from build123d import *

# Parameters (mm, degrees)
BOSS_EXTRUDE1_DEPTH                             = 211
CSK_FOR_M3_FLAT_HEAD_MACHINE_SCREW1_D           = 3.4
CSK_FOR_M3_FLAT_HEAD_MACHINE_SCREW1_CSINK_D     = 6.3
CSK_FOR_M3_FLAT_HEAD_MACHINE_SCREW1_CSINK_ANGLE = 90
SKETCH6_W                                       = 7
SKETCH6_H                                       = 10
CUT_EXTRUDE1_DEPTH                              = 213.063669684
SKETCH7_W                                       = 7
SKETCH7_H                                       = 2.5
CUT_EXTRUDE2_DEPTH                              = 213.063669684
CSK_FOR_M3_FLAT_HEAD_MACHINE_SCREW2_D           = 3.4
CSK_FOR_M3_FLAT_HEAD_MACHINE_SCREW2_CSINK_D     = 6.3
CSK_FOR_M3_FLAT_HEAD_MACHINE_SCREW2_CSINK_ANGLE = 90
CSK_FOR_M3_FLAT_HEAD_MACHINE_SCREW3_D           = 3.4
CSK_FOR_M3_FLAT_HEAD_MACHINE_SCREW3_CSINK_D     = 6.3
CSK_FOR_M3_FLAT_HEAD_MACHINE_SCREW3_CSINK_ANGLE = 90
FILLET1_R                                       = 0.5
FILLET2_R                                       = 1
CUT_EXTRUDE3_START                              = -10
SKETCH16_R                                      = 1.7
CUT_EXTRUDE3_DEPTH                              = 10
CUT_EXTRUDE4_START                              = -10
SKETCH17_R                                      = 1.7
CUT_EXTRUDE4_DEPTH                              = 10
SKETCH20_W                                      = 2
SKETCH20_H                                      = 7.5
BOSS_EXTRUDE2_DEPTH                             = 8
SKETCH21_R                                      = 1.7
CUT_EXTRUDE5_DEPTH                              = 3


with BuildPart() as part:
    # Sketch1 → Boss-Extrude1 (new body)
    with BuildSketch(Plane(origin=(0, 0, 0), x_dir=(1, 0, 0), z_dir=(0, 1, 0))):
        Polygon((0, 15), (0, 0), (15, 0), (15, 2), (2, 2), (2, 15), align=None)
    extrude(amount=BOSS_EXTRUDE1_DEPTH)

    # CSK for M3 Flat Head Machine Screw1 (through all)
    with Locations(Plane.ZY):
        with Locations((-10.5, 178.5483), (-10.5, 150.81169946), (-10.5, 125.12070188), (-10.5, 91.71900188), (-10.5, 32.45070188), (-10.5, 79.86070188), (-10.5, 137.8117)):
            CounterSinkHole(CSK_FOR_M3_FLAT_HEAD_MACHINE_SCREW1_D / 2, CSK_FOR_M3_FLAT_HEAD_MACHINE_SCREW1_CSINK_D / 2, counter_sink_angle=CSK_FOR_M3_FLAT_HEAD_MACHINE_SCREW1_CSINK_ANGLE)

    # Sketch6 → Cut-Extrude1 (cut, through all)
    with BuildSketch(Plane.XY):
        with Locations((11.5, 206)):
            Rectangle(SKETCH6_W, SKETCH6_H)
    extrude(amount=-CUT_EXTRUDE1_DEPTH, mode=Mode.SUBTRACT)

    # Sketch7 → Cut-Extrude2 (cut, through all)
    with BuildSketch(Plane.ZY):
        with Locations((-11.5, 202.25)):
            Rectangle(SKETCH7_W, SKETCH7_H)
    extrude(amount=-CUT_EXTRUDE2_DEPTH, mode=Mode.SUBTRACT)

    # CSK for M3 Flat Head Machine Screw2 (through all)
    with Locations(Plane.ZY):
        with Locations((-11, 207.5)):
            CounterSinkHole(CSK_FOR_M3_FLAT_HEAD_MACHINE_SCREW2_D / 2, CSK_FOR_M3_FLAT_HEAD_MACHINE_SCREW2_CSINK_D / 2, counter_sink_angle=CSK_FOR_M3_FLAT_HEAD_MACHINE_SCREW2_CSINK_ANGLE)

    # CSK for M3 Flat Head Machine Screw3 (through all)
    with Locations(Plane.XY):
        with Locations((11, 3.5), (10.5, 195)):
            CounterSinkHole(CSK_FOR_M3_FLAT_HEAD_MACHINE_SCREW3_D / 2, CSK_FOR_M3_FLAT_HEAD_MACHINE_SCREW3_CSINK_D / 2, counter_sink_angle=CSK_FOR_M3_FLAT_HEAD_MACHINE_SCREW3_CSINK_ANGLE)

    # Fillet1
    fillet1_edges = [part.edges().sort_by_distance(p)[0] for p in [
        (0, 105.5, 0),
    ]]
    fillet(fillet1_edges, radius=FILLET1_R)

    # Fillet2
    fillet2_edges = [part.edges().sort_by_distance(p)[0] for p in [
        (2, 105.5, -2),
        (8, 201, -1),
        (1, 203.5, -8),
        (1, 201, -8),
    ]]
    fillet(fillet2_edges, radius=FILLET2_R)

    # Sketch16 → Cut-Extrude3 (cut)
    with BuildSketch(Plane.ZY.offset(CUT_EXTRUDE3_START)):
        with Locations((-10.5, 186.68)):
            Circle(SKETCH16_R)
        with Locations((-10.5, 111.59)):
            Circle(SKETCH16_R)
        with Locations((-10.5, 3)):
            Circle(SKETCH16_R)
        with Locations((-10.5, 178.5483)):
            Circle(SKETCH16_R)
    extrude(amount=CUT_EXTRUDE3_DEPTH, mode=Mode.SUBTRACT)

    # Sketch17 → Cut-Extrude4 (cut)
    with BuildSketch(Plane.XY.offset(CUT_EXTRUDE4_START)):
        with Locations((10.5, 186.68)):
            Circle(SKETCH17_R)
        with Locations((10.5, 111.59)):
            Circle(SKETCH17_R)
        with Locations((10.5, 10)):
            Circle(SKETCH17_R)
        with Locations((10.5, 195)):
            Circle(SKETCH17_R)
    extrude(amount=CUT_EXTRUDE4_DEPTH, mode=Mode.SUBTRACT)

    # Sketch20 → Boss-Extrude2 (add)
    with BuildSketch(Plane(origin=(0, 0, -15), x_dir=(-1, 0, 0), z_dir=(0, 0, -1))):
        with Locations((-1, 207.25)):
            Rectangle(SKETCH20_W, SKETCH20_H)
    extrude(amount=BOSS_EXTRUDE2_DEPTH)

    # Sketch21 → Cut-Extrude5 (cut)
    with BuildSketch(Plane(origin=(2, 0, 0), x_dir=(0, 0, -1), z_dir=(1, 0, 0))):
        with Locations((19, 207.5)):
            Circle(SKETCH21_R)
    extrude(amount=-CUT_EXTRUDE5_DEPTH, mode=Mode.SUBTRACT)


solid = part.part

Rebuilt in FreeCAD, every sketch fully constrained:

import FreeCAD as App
import Part
import Sketcher


def edges_at(feature, points):
    """Names of the edges that pass closest to the given points."""
    edges = feature.Shape.Edges
    near = lambda p: min(range(len(edges)), key=lambda i: edges[i].distToShape(Part.Vertex(*p))[0])
    return sorted({f"Edge{near(p) + 1}" for p in points})

doc = App.newDocument("Part")
body = doc.addObject("PartDesign::Body", "Body")

sketch1 = body.newObject("Sketcher::SketchObject", "Sketch")
sketch1.AttachmentSupport = (doc.getObject("XZ_Plane"), [""])
sketch1.MapMode = "FlatFace"
sketch1.addGeometry([
    Part.LineSegment(App.Vector(0, -15, 0), App.Vector(0, 0, 0)),
    Part.LineSegment(App.Vector(0, 0, 0), App.Vector(15, 0, 0)),
    Part.LineSegment(App.Vector(15, 0, 0), App.Vector(15, -2, 0)),
    Part.LineSegment(App.Vector(15, -2, 0), App.Vector(2, -2, 0)),
    Part.LineSegment(App.Vector(2, -2, 0), App.Vector(2, -15, 0)),
    Part.LineSegment(App.Vector(2, -15, 0), App.Vector(0, -15, 0)),
], False)
sketch1.addConstraint([
    Sketcher.Constraint("Coincident", 0, 2, 1, 1),
    Sketcher.Constraint("Coincident", 1, 2, 2, 1),
    Sketcher.Constraint("Coincident", 2, 2, 3, 1),
    Sketcher.Constraint("Coincident", 3, 2, 4, 1),
    Sketcher.Constraint("Coincident", 4, 2, 5, 1),
    Sketcher.Constraint("Coincident", 5, 2, 0, 1),
    Sketcher.Constraint("Vertical", 0),
    Sketcher.Constraint("Horizontal", 1),
    Sketcher.Constraint("Vertical", 2),
    Sketcher.Constraint("Horizontal", 3),
    Sketcher.Constraint("Vertical", 4),
    Sketcher.Constraint("Horizontal", 5),
    Sketcher.Constraint("Coincident", 0, 2, -1, 1),
    Sketcher.Constraint("Equal", 1, 0),
    Sketcher.Constraint("Equal", 5, 2),
    Sketcher.Constraint("DistanceX", 1, 1, 1, 2, 15.0),
    Sketcher.Constraint("DistanceX", 3, 2, 3, 1, 13.0),
])
pad1 = body.newObject("PartDesign::Pad", "Pad")
pad1.Profile = sketch1
pad1.Length = 211
pad1.Reversed = True

sketch2 = body.newObject("Sketcher::SketchObject", "Sketch001")
sketch2.AttachmentSupport = (doc.getObject("YZ_Plane"), [""])
sketch2.MapMode = "FlatFace"
sketch2.addGeometry([
    Part.Circle(App.Vector(178.5483, -10.5, 0), App.Vector(0, 0, 1), 1.7),
    Part.Circle(App.Vector(150.811699, -10.5, 0), App.Vector(0, 0, 1), 1.7),
    Part.Circle(App.Vector(125.120702, -10.5, 0), App.Vector(0, 0, 1), 1.7),
    Part.Circle(App.Vector(91.719002, -10.5, 0), App.Vector(0, 0, 1), 1.7),
    Part.Circle(App.Vector(32.450702, -10.5, 0), App.Vector(0, 0, 1), 1.7),
    Part.Circle(App.Vector(79.860702, -10.5, 0), App.Vector(0, 0, 1), 1.7),
    Part.Circle(App.Vector(137.8117, -10.5, 0), App.Vector(0, 0, 1), 1.7),
], False)
sketch2.addConstraint([
    Sketcher.Constraint("Equal", 0, 1),
    Sketcher.Constraint("Equal", 1, 2),
    Sketcher.Constraint("Equal", 2, 3),
    Sketcher.Constraint("Equal", 3, 4),
    Sketcher.Constraint("Equal", 4, 5),
    Sketcher.Constraint("Equal", 5, 6),
    Sketcher.Constraint("Horizontal", 0, 3, 1, 3),
    Sketcher.Constraint("Horizontal", 1, 3, 2, 3),
    Sketcher.Constraint("Horizontal", 2, 3, 3, 3),
    Sketcher.Constraint("Horizontal", 3, 3, 4, 3),
    Sketcher.Constraint("Horizontal", 4, 3, 5, 3),
    Sketcher.Constraint("Horizontal", 5, 3, 6, 3),
    Sketcher.Constraint("Diameter", 0, 3.4),
    Sketcher.Constraint("DistanceX", 6, 3, 1, 3, 12.999999),
    Sketcher.Constraint("DistanceY", 0, 3, -1, 1, 10.5),
    Sketcher.Constraint("DistanceX", 4, 3, 2, 3, 92.67),
    Sketcher.Constraint("DistanceX", 5, 3, 2, 3, 45.26),
    Sketcher.Constraint("DistanceX", -1, 1, 3, 3, 91.719002),
    Sketcher.Constraint("DistanceX", 2, 3, 6, 3, 12.690998),
    Sketcher.Constraint("DistanceX", -1, 1, 0, 3, 178.5483),
    Sketcher.Constraint("DistanceX", -1, 1, 1, 3, 150.811699),
])
doc.recompute()
hole = body.newObject("PartDesign::Hole", "Hole")
hole.Profile = sketch2
hole.ThreadType = "None"
hole.Diameter = 3.4
hole.DepthType = "ThroughAll"
hole.HoleCutType = "Countersink"
hole.HoleCutDiameter = 6.3
hole.HoleCutCountersinkAngle = 90
hole.Reversed = True

sketch3 = body.newObject("Sketcher::SketchObject", "Sketch002")
sketch3.AttachmentSupport = (doc.getObject("XY_Plane"), [""])
sketch3.MapMode = "FlatFace"
sketch3.addGeometry([
    Part.LineSegment(App.Vector(8, 211, 0), App.Vector(8, 201, 0)),
    Part.LineSegment(App.Vector(8, 201, 0), App.Vector(15, 201, 0)),
    Part.LineSegment(App.Vector(15, 201, 0), App.Vector(15, 211, 0)),
    Part.LineSegment(App.Vector(15, 211, 0), App.Vector(8, 211, 0)),
], False)
sketch3.addConstraint([
    Sketcher.Constraint("Coincident", 0, 2, 1, 1),
    Sketcher.Constraint("Coincident", 1, 2, 2, 1),
    Sketcher.Constraint("Coincident", 2, 2, 3, 1),
    Sketcher.Constraint("Coincident", 3, 2, 0, 1),
    Sketcher.Constraint("Vertical", 0),
    Sketcher.Constraint("Horizontal", 1),
    Sketcher.Constraint("Vertical", 2),
    Sketcher.Constraint("Horizontal", 3),
    Sketcher.Constraint("DistanceX", 1, 1, 1, 2, 7.0),
    Sketcher.Constraint("DistanceY", 0, 2, 0, 1, 10.0),
    Sketcher.Constraint("DistanceX", -1, 1, 0, 2, 8.0),
    Sketcher.Constraint("DistanceY", -1, 1, 0, 2, 201.0),
])
pocket1 = body.newObject("PartDesign::Pocket", "Pocket")
pocket1.Profile = sketch3
pocket1.Type = "ThroughAll"

sketch4 = body.newObject("Sketcher::SketchObject", "Sketch003")
sketch4.AttachmentSupport = (doc.getObject("YZ_Plane"), [""])
sketch4.MapMode = "FlatFace"
sketch4.addGeometry([
    Part.LineSegment(App.Vector(203.5, -15, 0), App.Vector(201, -15, 0)),
    Part.LineSegment(App.Vector(201, -15, 0), App.Vector(201, -8, 0)),
    Part.LineSegment(App.Vector(201, -8, 0), App.Vector(203.5, -8, 0)),
    Part.LineSegment(App.Vector(203.5, -8, 0), App.Vector(203.5, -15, 0)),
], False)
sketch4.addConstraint([
    Sketcher.Constraint("Coincident", 0, 2, 1, 1),
    Sketcher.Constraint("Coincident", 1, 2, 2, 1),
    Sketcher.Constraint("Coincident", 2, 2, 3, 1),
    Sketcher.Constraint("Coincident", 3, 2, 0, 1),
    Sketcher.Constraint("Horizontal", 0),
    Sketcher.Constraint("Vertical", 1),
    Sketcher.Constraint("Horizontal", 2),
    Sketcher.Constraint("Vertical", 3),
    Sketcher.Constraint("DistanceY", 1, 1, 1, 2, 7.0),
    Sketcher.Constraint("DistanceX", 0, 2, 0, 1, 2.5),
    Sketcher.Constraint("DistanceX", -1, 1, 0, 2, 201.0),
    Sketcher.Constraint("DistanceY", 0, 2, -1, 1, 15.0),
])
pocket2 = body.newObject("PartDesign::Pocket", "Pocket001")
pocket2.Profile = sketch4
pocket2.Type = "ThroughAll"
pocket2.Reversed = True

sketch5 = body.newObject("Sketcher::SketchObject", "Sketch004")
sketch5.AttachmentSupport = (doc.getObject("YZ_Plane"), [""])
sketch5.MapMode = "FlatFace"
sketch5.addGeometry(Part.Circle(App.Vector(207.5, -11, 0), App.Vector(0, 0, 1), 1.7), False)
sketch5.addConstraint([
    Sketcher.Constraint("Diameter", 0, 3.4),
    Sketcher.Constraint("DistanceY", 0, 3, -1, 1, 11.0),
    Sketcher.Constraint("DistanceX", -1, 1, 0, 3, 207.5),
])
doc.recompute()
hole2 = body.newObject("PartDesign::Hole", "Hole001")
hole2.Profile = sketch5
hole2.ThreadType = "None"
hole2.Diameter = 3.4
hole2.DepthType = "ThroughAll"
hole2.HoleCutType = "Countersink"
hole2.HoleCutDiameter = 6.3
hole2.HoleCutCountersinkAngle = 90
hole2.Reversed = True

sketch6 = body.newObject("Sketcher::SketchObject", "Sketch005")
sketch6.AttachmentSupport = (doc.getObject("XY_Plane"), [""])
sketch6.MapMode = "FlatFace"
sketch6.addGeometry([
    Part.Circle(App.Vector(11, 3.5, 0), App.Vector(0, 0, 1), 1.7),
    Part.Circle(App.Vector(10.5, 195, 0), App.Vector(0, 0, 1), 1.7),
], False)
sketch6.addConstraint([
    Sketcher.Constraint("Equal", 0, 1),
    Sketcher.Constraint("Diameter", 0, 3.4),
    Sketcher.Constraint("DistanceX", -1, 1, 0, 3, 11.0),
    Sketcher.Constraint("DistanceY", -1, 1, 1, 3, 195.0),
    Sketcher.Constraint("DistanceY", -1, 1, 0, 3, 3.5),
    Sketcher.Constraint("DistanceX", -1, 1, 1, 3, 10.5),
])
doc.recompute()
hole3 = body.newObject("PartDesign::Hole", "Hole002")
hole3.Profile = sketch6
hole3.ThreadType = "None"
hole3.Diameter = 3.4
hole3.DepthType = "ThroughAll"
hole3.HoleCutType = "Countersink"
hole3.HoleCutDiameter = 6.3
hole3.HoleCutCountersinkAngle = 90
doc.recompute()

fillet = body.newObject("PartDesign::Fillet", "Fillet")
fillet.Base = (hole3, edges_at(hole3, [(0, 105.5, 0)]))
fillet.Radius = 0.5
doc.recompute()

fillet2 = body.newObject("PartDesign::Fillet", "Fillet001")
fillet2.Base = (fillet, edges_at(fillet, [
    (2, 105.5, -2),
    (8, 201, -1),
    (1, 203.5, -8),
    (1, 201, -8),
]))
fillet2.Radius = 1

sketch7 = body.newObject("Sketcher::SketchObject", "Sketch006")
sketch7.AttachmentSupport = (doc.getObject("YZ_Plane"), [""])
sketch7.MapMode = "FlatFace"
sketch7.AttachmentOffset = App.Placement(App.Vector(0, 0, 10), App.Rotation())
sketch7.addGeometry([
    Part.Circle(App.Vector(186.68, -10.5, 0), App.Vector(0, 0, 1), 1.7),
    Part.Circle(App.Vector(111.59, -10.5, 0), App.Vector(0, 0, 1), 1.7),
    Part.Circle(App.Vector(3, -10.5, 0), App.Vector(0, 0, 1), 1.7),
    Part.Circle(App.Vector(178.5483, -10.5, 0), App.Vector(0, 0, 1), 1.7),
], False)
sketch7.addConstraint([
    Sketcher.Constraint("Equal", 0, 1),
    Sketcher.Constraint("Equal", 1, 2),
    Sketcher.Constraint("Equal", 2, 3),
    Sketcher.Constraint("Horizontal", 0, 3, 1, 3),
    Sketcher.Constraint("Horizontal", 1, 3, 2, 3),
    Sketcher.Constraint("Horizontal", 2, 3, 3, 3),
    Sketcher.Constraint("Diameter", 0, 3.4),
    Sketcher.Constraint("DistanceX", -1, 1, 2, 3, 3.0),
    Sketcher.Constraint("DistanceY", 0, 3, -1, 1, 10.5),
    Sketcher.Constraint("DistanceX", -1, 1, 0, 3, 186.68),
    Sketcher.Constraint("DistanceX", -1, 1, 1, 3, 111.59),
    Sketcher.Constraint("DistanceX", -1, 1, 3, 3, 178.5483),
])
pocket3 = body.newObject("PartDesign::Pocket", "Pocket002")
pocket3.Profile = sketch7
pocket3.Length = 10

sketch8 = body.newObject("Sketcher::SketchObject", "Sketch007")
sketch8.AttachmentSupport = (doc.getObject("XY_Plane"), [""])
sketch8.MapMode = "FlatFace"
sketch8.AttachmentOffset = App.Placement(App.Vector(0, 0, -10), App.Rotation())
sketch8.addGeometry([
    Part.Circle(App.Vector(10.5, 186.68, 0), App.Vector(0, 0, 1), 1.7),
    Part.Circle(App.Vector(10.5, 111.59, 0), App.Vector(0, 0, 1), 1.7),
    Part.Circle(App.Vector(10.5, 10, 0), App.Vector(0, 0, 1), 1.7),
    Part.Circle(App.Vector(10.5, 195, 0), App.Vector(0, 0, 1), 1.7),
], False)
sketch8.addConstraint([
    Sketcher.Constraint("Equal", 0, 1),
    Sketcher.Constraint("Equal", 1, 2),
    Sketcher.Constraint("Equal", 2, 3),
    Sketcher.Constraint("Vertical", 0, 3, 1, 3),
    Sketcher.Constraint("Vertical", 1, 3, 2, 3),
    Sketcher.Constraint("Vertical", 2, 3, 3, 3),
    Sketcher.Constraint("Diameter", 0, 3.4),
    Sketcher.Constraint("DistanceY", -1, 1, 2, 3, 10.0),
    Sketcher.Constraint("DistanceY", -1, 1, 3, 3, 195.0),
    Sketcher.Constraint("DistanceX", -1, 1, 0, 3, 10.5),
    Sketcher.Constraint("DistanceY", -1, 1, 0, 3, 186.68),
    Sketcher.Constraint("DistanceY", -1, 1, 1, 3, 111.59),
])
pocket4 = body.newObject("PartDesign::Pocket", "Pocket003")
pocket4.Profile = sketch8
pocket4.Length = 10
pocket4.Reversed = True

sketch9 = body.newObject("Sketcher::SketchObject", "Sketch008")
sketch9.AttachmentSupport = (doc.getObject("XY_Plane"), [""])
sketch9.MapMode = "FlatFace"
sketch9.AttachmentOffset = App.Placement(App.Vector(0, 0, -15), App.Rotation())
sketch9.addGeometry([
    Part.LineSegment(App.Vector(2, 211, 0), App.Vector(2, 203.5, 0)),
    Part.LineSegment(App.Vector(2, 203.5, 0), App.Vector(0, 203.5, 0)),
    Part.LineSegment(App.Vector(0, 203.5, 0), App.Vector(0, 211, 0)),
    Part.LineSegment(App.Vector(0, 211, 0), App.Vector(2, 211, 0)),
], False)
sketch9.addConstraint([
    Sketcher.Constraint("Coincident", 0, 2, 1, 1),
    Sketcher.Constraint("Coincident", 1, 2, 2, 1),
    Sketcher.Constraint("Coincident", 2, 2, 3, 1),
    Sketcher.Constraint("Coincident", 3, 2, 0, 1),
    Sketcher.Constraint("Vertical", 0),
    Sketcher.Constraint("Horizontal", 1),
    Sketcher.Constraint("Vertical", 2),
    Sketcher.Constraint("Horizontal", 3),
    Sketcher.Constraint("PointOnObject", 1, 2, -2),
    Sketcher.Constraint("DistanceX", 1, 2, 1, 1, 2.0),
    Sketcher.Constraint("DistanceY", 0, 2, 0, 1, 7.5),
    Sketcher.Constraint("DistanceY", -1, 1, 2, 2, 211.0),
])
pad2 = body.newObject("PartDesign::Pad", "Pad001")
pad2.Profile = sketch9
pad2.Length = 8
pad2.Reversed = True

sketch10 = body.newObject("Sketcher::SketchObject", "Sketch009")
sketch10.AttachmentSupport = (doc.getObject("YZ_Plane"), [""])
sketch10.MapMode = "FlatFace"
sketch10.AttachmentOffset = App.Placement(App.Vector(0, 0, 2), App.Rotation())
sketch10.addGeometry(Part.Circle(App.Vector(207.5, -19, 0), App.Vector(0, 0, 1), 1.7), False)
sketch10.addConstraint([
    Sketcher.Constraint("Diameter", 0, 3.4),
    Sketcher.Constraint("DistanceY", 0, 3, -1, 1, 19.0),
    Sketcher.Constraint("DistanceX", -1, 1, 0, 3, 207.5),
])
pocket5 = body.newObject("PartDesign::Pocket", "Pocket004")
pocket5.Profile = sketch10
pocket5.Length = 3

doc.recompute()
